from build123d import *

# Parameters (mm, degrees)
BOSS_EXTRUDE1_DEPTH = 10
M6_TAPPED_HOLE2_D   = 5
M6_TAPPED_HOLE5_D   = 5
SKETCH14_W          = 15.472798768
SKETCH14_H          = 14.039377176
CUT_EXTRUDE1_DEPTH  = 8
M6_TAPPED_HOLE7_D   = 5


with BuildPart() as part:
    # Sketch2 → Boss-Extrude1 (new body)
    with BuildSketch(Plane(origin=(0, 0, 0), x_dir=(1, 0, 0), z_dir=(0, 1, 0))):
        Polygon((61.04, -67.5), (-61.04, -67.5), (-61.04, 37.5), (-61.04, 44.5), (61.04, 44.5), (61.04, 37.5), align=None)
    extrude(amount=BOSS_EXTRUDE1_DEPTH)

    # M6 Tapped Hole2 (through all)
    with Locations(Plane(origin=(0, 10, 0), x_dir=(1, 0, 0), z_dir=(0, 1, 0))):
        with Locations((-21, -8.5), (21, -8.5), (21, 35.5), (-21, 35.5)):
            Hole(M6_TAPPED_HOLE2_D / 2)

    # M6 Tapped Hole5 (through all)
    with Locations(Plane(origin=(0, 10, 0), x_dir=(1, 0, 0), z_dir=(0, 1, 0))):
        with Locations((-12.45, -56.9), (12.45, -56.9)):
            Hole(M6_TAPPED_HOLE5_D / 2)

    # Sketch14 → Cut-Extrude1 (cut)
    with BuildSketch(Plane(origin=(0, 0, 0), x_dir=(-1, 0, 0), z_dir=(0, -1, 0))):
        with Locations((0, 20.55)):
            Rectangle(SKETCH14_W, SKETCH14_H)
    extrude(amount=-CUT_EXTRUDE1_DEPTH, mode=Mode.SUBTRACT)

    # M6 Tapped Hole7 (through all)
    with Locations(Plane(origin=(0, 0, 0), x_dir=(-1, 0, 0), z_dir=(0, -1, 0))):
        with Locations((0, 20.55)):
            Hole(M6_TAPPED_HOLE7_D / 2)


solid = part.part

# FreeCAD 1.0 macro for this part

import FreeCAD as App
import Part
import Sketcher
from FreeCAD import Vector
Q = App.Units.Quantity

doc = App.newDocument("Part")
body = doc.addObject("PartDesign::Body", "Body")

sketch1 = body.newObject("Sketcher::SketchObject", "Sketch")
sketch1.AttachmentSupport = (doc.getObject("XZ_Plane"), [""])
sketch1.MapMode = "FlatFace"
sketch1.addGeometry(Part.LineSegment(Vector(-61.04, 67.5, 0), Vector(61.04, 67.5, 0)), False)
sketch1.addGeometry(Part.LineSegment(Vector(61.04, 67.5, 0), Vector(61.04, -44.5, 0)), False)
sketch1.addGeometry(Part.LineSegment(Vector(61.04, -44.5, 0), Vector(-61.04, -44.5, 0)), False)
sketch1.addGeometry(Part.LineSegment(Vector(-61.04, -44.5, 0), Vector(-61.04, 67.5, 0)), False)
sketch1.addConstraint(Sketcher.Constraint("Coincident", 0, 2, 1, 1))
sketch1.addConstraint(Sketcher.Constraint("Coincident", 1, 2, 2, 1))
sketch1.addConstraint(Sketcher.Constraint("Coincident", 2, 2, 3, 1))
sketch1.addConstraint(Sketcher.Constraint("Coincident", 3, 2, 0, 1))
sketch1.addConstraint(Sketcher.Constraint("Horizontal", 0))
sketch1.addConstraint(Sketcher.Constraint("Vertical", 1))
sketch1.addConstraint(Sketcher.Constraint("Horizontal", 2))
sketch1.addConstraint(Sketcher.Constraint("Vertical", 3))
sketch1.addConstraint(Sketcher.Constraint("DistanceY", 1, 2, 1, 1, Q("112 mm")))
sketch1.addConstraint(Sketcher.Constraint("DistanceX", 0, 1, 0, 2, Q("122.08 mm")))
sketch1.addConstraint(Sketcher.Constraint("DistanceY", -1, 1, 0, 2, Q("67.5 mm")))
sketch1.addConstraint(Sketcher.Constraint("DistanceX", -1, 1, 0, 2, Q("61.04 mm")))
pad1 = body.newObject("PartDesign::Pad", "Pad")
pad1.Profile = sketch1
pad1.Length = 10
pad1.Reversed = True

sketch2 = body.newObject("Sketcher::SketchObject", "Sketch001")
sketch2.AttachmentSupport = (doc.getObject("XZ_Plane"), [""])
sketch2.MapMode = "FlatFace"
sketch2.AttachmentOffset = App.Placement(Vector(0, 0, -10), App.Rotation())
sketch2.addGeometry(Part.Circle(Vector(-21, 8.5, 0), Vector(0, 0, 1), 2.5), False)
sketch2.addGeometry(Part.Circle(Vector(21, 8.5, 0), Vector(0, 0, 1), 2.5), False)
sketch2.addGeometry(Part.Circle(Vector(21, -35.5, 0), Vector(0, 0, 1), 2.5), False)
sketch2.addGeometry(Part.Circle(Vector(-21, -35.5, 0), Vector(0, 0, 1), 2.5), False)
sketch2.addConstraint(Sketcher.Constraint("Equal", 0, 1))
sketch2.addConstraint(Sketcher.Constraint("Equal", 1, 2))
sketch2.addConstraint(Sketcher.Constraint("Equal", 2, 3))
sketch2.addConstraint(Sketcher.Constraint("Symmetric", 0, 3, 1, 3, -2))
sketch2.addConstraint(Sketcher.Constraint("Symmetric", 2, 3, 3, 3, -2))
sketch2.addConstraint(Sketcher.Constraint("Vertical", 1, 3, 2, 3))
sketch2.addConstraint(Sketcher.Constraint("Diameter", 0, Q("5 mm")))
sketch2.addConstraint(Sketcher.Constraint("DistanceX", 0, 3, -1, 1, Q("21 mm")))
sketch2.addConstraint(Sketcher.Constraint("DistanceY", 2, 3, 1, 3, Q("44 mm")))
sketch2.addConstraint(Sketcher.Constraint("DistanceY", -1, 1, 0, 3, Q("8.5 mm")))
doc.recompute()
hole = body.newObject("PartDesign::Hole", "Hole")
hole.Profile = sketch2
hole.ThreadType = "None"
hole.Diameter = 5
hole.DepthType = "ThroughAll"
hole.Reversed = True

sketch3 = body.newObject("Sketcher::SketchObject", "Sketch002")
sketch3.AttachmentSupport = (doc.getObject("XZ_Plane"), [""])
sketch3.MapMode = "FlatFace"
sketch3.AttachmentOffset = App.Placement(Vector(0, 0, -10), App.Rotation())
sketch3.addGeometry(Part.Circle(Vector(-12.45, 56.9, 0), Vector(0, 0, 1), 2.5), False)
sketch3.addGeometry(Part.Circle(Vector(12.45, 56.9, 0), Vector(0, 0, 1), 2.5), False)
sketch3.addConstraint(Sketcher.Constraint("Equal", 0, 1))
sketch3.addConstraint(Sketcher.Constraint("Symmetric", 0, 3, 1, 3, -2))
sketch3.addConstraint(Sketcher.Constraint("Diameter", 0, Q("5 mm")))
sketch3.addConstraint(Sketcher.Constraint("DistanceY", -1, 1, 0, 3, Q("56.9 mm")))
sketch3.addConstraint(Sketcher.Constraint("DistanceX", 0, 3, 1, 3, Q("24.9 mm")))
doc.recompute()
hole2 = body.newObject("PartDesign::Hole", "Hole001")
hole2.Profile = sketch3
hole2.ThreadType = "None"
hole2.Diameter = 5
hole2.DepthType = "ThroughAll"
hole2.Reversed = True

sketch4 = body.newObject("Sketcher::SketchObject", "Sketch003")
sketch4.AttachmentSupport = (doc.getObject("XZ_Plane"), [""])
sketch4.MapMode = "FlatFace"
sketch4.addGeometry(Part.LineSegment(Vector(7.736399, -27.569689, 0), Vector(7.736399, -13.530311, 0)), False)
sketch4.addGeometry(Part.LineSegment(Vector(7.736399, -13.530311, 0), Vector(-7.736399, -13.530311, 0)), False)
sketch4.addGeometry(Part.LineSegment(Vector(-7.736399, -13.530311, 0), Vector(-7.736399, -27.569689, 0)), False)
sketch4.addGeometry(Part.LineSegment(Vector(-7.736399, -27.569689, 0), Vector(7.736399, -27.569689, 0)), False)
sketch4.addConstraint(Sketcher.Constraint("Coincident", 0, 2, 1, 1))
sketch4.addConstraint(Sketcher.Constraint("Coincident", 1, 2, 2, 1))
sketch4.addConstraint(Sketcher.Constraint("Coincident", 2, 2, 3, 1))
sketch4.addConstraint(Sketcher.Constraint("Coincident", 3, 2, 0, 1))
sketch4.addConstraint(Sketcher.Constraint("Vertical", 0))
sketch4.addConstraint(Sketcher.Constraint("Horizontal", 1))
sketch4.addConstraint(Sketcher.Constraint("Vertical", 2))
sketch4.addConstraint(Sketcher.Constraint("Horizontal", 3))
sketch4.addConstraint(Sketcher.Constraint("DistanceX", 1, 2, 1, 1, Q("15.472799 mm")))
sketch4.addConstraint(Sketcher.Constraint("DistanceX", -1, 1, 0, 2, Q("7.736399 mm")))
sketch4.addConstraint(Sketcher.Constraint("DistanceY", 0, 1, 0, 2, Q("14.039377 mm")))
sketch4.addConstraint(Sketcher.Constraint("DistanceY", 0, 2, -1, 1, Q("13.530311 mm")))
pocket1 = body.newObject("PartDesign::Pocket", "Pocket")
pocket1.Profile = sketch4
pocket1.Length = 8

sketch5 = body.newObject("Sketcher::SketchObject", "Sketch004")
sketch5.AttachmentSupport = (doc.getObject("XZ_Plane"), [""])
sketch5.MapMode = "FlatFace"
sketch5.addGeometry(Part.Circle(Vector(0, -20.55, 0), Vector(0, 0, 1), 2.5), False)
sketch5.addConstraint(Sketcher.Constraint("PointOnObject", 0, 3, -2))
sketch5.addConstraint(Sketcher.Constraint("Diameter", 0, Q("5 mm")))
sketch5.addConstraint(Sketcher.Constraint("DistanceY", 0, 3, -1, 1, Q("20.55 mm")))
doc.recompute()
hole3 = body.newObject("PartDesign::Hole", "Hole002")
hole3.Profile = sketch5
hole3.ThreadType = "None"
hole3.Diameter = 5
hole3.DepthType = "ThroughAll"

doc.recompute()
